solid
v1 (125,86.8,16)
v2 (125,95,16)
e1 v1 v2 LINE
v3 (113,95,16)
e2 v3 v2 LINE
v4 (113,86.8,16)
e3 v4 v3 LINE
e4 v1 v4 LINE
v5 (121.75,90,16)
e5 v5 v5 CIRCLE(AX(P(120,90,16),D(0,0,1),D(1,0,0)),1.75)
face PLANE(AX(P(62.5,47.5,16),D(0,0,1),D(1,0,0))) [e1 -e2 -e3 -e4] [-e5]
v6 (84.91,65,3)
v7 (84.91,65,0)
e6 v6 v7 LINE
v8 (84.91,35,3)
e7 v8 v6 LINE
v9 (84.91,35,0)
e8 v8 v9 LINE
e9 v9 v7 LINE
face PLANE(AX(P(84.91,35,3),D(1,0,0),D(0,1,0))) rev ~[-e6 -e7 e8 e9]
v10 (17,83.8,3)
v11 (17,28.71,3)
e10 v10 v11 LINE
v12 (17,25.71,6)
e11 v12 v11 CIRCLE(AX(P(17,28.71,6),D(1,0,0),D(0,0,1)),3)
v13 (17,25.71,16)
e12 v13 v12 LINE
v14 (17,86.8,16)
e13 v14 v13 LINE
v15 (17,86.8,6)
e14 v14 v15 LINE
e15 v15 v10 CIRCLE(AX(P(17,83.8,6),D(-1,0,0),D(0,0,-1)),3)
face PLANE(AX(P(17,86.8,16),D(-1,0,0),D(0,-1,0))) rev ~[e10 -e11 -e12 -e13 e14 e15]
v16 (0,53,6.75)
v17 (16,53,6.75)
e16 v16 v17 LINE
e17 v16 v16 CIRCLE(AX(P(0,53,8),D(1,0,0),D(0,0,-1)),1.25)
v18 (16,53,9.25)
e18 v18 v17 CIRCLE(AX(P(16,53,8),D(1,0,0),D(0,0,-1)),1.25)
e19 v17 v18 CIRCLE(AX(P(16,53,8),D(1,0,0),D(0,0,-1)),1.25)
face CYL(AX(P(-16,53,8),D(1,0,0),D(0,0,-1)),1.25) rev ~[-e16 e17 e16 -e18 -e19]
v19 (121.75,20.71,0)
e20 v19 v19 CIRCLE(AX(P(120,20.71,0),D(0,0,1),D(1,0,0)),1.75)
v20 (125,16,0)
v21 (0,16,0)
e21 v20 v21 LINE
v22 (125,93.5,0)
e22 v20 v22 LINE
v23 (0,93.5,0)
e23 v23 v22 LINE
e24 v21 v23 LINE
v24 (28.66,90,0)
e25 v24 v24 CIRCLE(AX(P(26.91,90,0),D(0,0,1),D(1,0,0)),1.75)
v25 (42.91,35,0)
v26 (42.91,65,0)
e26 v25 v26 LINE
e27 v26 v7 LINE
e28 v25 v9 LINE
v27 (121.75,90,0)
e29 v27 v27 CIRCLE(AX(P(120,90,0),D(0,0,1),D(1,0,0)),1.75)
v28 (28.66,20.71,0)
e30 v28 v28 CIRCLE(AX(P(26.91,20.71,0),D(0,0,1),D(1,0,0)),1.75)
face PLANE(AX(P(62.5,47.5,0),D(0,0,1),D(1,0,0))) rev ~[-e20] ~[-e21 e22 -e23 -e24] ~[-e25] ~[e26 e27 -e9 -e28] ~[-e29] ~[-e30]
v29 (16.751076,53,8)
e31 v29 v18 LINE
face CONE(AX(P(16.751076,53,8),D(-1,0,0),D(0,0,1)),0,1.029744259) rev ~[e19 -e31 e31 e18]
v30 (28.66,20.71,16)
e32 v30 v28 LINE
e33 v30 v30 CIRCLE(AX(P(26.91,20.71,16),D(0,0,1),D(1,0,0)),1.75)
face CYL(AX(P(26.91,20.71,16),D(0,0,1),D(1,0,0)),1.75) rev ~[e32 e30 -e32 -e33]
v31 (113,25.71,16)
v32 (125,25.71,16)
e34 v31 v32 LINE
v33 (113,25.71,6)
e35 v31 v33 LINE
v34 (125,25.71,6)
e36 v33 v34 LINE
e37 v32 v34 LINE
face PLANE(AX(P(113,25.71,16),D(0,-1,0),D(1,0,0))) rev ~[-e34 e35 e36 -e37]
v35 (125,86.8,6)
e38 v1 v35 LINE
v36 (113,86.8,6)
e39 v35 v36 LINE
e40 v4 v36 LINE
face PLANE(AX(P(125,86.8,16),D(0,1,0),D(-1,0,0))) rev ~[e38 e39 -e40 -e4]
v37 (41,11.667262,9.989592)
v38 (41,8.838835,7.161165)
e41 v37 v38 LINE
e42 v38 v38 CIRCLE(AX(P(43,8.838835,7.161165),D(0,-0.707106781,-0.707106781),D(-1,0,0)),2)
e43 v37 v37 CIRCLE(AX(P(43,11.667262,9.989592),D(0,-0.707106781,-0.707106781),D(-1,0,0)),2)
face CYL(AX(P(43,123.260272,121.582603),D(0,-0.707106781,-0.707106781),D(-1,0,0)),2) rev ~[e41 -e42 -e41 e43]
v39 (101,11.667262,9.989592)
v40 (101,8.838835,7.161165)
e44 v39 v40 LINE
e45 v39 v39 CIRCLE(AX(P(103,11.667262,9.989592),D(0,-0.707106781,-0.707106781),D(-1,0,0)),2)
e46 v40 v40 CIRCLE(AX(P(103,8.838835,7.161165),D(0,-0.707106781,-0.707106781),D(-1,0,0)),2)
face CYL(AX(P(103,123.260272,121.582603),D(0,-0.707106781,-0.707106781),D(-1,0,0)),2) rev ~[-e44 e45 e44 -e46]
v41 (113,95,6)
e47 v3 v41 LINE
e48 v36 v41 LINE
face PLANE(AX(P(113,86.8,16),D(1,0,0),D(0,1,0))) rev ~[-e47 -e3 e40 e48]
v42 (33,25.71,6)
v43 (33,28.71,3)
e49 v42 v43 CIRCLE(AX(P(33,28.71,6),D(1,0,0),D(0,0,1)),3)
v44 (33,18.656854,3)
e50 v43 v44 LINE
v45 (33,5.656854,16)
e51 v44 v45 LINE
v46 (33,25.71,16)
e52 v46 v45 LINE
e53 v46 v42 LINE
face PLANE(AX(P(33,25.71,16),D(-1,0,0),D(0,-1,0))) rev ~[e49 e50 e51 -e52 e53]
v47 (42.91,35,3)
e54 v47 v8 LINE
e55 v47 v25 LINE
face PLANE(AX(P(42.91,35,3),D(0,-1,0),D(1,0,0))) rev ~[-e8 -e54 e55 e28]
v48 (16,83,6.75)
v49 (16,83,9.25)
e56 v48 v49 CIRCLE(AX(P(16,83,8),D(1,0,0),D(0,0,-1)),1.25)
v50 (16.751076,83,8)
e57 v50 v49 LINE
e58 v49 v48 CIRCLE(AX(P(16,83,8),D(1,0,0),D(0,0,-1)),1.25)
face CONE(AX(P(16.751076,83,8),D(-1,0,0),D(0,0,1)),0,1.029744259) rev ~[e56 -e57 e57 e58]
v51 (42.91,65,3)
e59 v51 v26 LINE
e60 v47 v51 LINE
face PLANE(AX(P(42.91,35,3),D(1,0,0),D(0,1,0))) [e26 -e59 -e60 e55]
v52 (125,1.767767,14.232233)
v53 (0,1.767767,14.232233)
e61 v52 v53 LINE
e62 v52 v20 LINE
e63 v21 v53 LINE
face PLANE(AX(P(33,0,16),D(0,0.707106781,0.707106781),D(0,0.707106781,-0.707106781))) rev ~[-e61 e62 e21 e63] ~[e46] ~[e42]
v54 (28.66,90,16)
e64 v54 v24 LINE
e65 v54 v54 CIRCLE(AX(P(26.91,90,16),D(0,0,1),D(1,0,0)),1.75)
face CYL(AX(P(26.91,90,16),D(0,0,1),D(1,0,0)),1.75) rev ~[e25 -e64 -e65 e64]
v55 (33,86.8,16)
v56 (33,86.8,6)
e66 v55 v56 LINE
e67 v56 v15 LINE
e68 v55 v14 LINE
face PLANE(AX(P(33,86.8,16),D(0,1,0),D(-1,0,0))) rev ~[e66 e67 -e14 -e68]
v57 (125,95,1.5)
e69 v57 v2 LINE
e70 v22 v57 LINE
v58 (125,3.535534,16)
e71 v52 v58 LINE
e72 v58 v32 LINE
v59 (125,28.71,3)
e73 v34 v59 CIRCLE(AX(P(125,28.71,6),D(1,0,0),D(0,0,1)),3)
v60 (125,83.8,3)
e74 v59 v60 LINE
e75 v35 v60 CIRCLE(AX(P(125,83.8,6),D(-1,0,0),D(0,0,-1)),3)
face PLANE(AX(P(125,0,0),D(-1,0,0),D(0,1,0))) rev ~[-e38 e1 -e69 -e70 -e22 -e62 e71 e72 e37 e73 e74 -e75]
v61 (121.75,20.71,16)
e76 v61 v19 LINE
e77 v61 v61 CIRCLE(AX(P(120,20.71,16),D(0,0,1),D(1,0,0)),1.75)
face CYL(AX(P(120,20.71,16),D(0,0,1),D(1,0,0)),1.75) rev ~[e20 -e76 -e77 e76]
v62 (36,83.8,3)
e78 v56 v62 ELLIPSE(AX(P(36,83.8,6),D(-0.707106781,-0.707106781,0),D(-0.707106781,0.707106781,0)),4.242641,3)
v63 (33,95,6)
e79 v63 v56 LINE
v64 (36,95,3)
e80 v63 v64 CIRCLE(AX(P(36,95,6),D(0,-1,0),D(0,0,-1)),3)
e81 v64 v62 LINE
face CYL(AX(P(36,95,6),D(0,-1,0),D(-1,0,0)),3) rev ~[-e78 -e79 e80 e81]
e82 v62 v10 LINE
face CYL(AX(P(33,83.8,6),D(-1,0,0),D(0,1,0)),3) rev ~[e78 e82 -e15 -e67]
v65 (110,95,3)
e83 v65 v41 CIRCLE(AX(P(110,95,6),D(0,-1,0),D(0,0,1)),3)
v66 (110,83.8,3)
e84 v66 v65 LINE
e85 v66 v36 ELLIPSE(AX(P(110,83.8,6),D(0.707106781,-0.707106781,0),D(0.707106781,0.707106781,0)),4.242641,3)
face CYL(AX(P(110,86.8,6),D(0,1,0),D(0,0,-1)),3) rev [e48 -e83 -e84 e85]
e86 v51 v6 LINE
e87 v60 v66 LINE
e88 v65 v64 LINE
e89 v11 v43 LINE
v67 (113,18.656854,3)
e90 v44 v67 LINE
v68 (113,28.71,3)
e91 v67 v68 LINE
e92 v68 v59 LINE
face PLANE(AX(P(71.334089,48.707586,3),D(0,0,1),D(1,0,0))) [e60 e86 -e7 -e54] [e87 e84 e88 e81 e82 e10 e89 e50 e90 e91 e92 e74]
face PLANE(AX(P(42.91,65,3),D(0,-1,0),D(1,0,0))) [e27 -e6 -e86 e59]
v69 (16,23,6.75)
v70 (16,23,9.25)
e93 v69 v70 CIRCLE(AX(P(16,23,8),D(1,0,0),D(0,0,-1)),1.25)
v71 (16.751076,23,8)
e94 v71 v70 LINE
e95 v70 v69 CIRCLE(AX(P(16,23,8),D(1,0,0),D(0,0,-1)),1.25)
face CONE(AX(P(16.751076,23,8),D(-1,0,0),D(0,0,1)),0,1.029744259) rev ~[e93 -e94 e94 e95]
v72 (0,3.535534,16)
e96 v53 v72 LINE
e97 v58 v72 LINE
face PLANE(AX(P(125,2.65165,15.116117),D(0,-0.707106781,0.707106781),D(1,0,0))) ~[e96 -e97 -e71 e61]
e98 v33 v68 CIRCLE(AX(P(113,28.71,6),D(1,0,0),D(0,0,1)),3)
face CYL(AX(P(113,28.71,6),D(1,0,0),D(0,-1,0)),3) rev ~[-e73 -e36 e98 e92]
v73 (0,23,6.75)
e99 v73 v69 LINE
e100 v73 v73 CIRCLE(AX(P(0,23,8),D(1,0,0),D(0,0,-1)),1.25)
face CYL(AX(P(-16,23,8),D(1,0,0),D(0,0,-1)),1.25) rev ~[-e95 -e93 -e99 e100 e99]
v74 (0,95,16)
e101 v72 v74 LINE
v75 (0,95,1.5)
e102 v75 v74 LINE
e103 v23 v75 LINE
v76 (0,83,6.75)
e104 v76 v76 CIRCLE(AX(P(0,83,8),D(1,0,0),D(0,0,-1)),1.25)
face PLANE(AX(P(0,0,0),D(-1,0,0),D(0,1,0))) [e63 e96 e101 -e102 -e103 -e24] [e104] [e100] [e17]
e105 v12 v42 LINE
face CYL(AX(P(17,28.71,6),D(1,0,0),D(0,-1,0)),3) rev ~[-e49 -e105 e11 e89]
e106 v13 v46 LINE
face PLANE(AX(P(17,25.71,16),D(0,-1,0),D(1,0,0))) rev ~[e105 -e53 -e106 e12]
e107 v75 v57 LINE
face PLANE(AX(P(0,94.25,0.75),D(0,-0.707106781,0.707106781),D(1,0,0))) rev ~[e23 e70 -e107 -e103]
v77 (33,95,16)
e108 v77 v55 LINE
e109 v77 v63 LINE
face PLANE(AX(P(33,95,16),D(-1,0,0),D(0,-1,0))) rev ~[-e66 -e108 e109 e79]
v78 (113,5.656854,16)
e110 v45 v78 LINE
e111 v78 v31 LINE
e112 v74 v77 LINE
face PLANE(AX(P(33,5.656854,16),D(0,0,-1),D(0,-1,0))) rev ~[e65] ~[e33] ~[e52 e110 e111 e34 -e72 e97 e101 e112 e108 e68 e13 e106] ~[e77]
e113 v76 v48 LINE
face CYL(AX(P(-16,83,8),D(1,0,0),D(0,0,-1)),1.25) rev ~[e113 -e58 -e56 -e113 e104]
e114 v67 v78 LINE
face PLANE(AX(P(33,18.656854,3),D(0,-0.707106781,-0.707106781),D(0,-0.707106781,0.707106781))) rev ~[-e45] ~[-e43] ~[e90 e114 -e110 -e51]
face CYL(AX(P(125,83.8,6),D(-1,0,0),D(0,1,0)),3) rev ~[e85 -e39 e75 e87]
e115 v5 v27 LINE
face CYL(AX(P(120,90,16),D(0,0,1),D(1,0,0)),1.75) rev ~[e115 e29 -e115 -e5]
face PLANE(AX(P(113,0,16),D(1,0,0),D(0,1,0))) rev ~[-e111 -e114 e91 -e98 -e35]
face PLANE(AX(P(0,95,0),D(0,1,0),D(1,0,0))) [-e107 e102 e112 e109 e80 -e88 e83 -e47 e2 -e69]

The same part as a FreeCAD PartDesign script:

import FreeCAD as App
import Part
import Sketcher

V = App.Vector
Q = App.Units.Quantity


def edges_at(feature, points):
    """Names of the edges that pass closest to the given points."""
    edges = feature.Shape.Edges
    near = lambda p: min(range(len(edges)), key=lambda i: edges[i].distToShape(Part.Vertex(*p))[0])
    return sorted({f"Edge{near(p) + 1}" for p in points})

doc = App.newDocument("Part")
params = doc.addObject("Spreadsheet::Sheet", "Params")
for row, (alias, value) in enumerate([
    ("sketch1_width", "125 mm"),
    ("sketch1_height", "95 mm"),
    ("pad1_length", "16 mm"),
    ("sketch2_diameter", "3.5 mm"),
    ("sketch3_width", "16 mm"),
    ("sketch3_width2", "80 mm"),
    ("sketch3_width3", "12 mm"),
    ("sketch3_height", "8.2 mm"),
    ("sketch3_height2", "61.09 mm"),
    ("pocket2_length", "13 mm"),
    ("sketch4_width", "16 mm"),
    ("pad2_length", "80 mm"),
    ("sketch6_diameter", "4 mm"),
    ("hole_diameter", "4 mm"),
    ("sketch7_width", "42 mm"),
    ("sketch7_height", "30 mm"),
    ("fillet_radius", "3 mm"),
    ("chamfer_size", "2.5 mm"),
    ("chamfer_size2", "3.535534 mm"),
    ("sketch8_diameter", "2.5 mm"),
    ("hole2_diameter", "2.5 mm"),
    ("hole2_depth", "16 mm"),
    ("chamfer2_size", "1.5 mm"),
], start=1):
    params.set(f"A{row}", alias)
    params.set(f"B{row}", "=" + value)
    params.setAlias(f"B{row}", alias)

body = doc.addObject("PartDesign::Body", "Body")

# Sketch on XY plane
sketch1 = body.newObject("Sketcher::SketchObject", "Sketch")
sketch1.AttachmentSupport = (doc.getObject("XY_Plane"), [""])
sketch1.MapMode = "FlatFace"
sketch1.addGeometry([
    Part.LineSegment(V(0, 95, 0), V(0, 0, 0)),
    Part.LineSegment(V(0, 0, 0), V(125, 0, 0)),
    Part.LineSegment(V(125, 0, 0), V(125, 95, 0)),
    Part.LineSegment(V(125, 95, 0), V(0, 95, 0)),
], False)
sketch1.addConstraint([
    Sketcher.Constraint("Coincident", 0, 2, 1, 1),
    Sketcher.Constraint("Coincident", 1, 2, 2, 1),
    Sketcher.Constraint("Coincident", 2, 2, 3, 1),
    Sketcher.Constraint("Coincident", 3, 2, 0, 1),
    Sketcher.Constraint("Vertical", 0),
    Sketcher.Constraint("Horizontal", 1),
    Sketcher.Constraint("Vertical", 2),
    Sketcher.Constraint("Horizontal", 3),
    Sketcher.Constraint("Coincident", 0, 2, -1, 1),
    Sketcher.Constraint("DistanceX", 1, 1, 1, 2, 125.0),
    Sketcher.Constraint("DistanceY", 0, 2, 0, 1, 95.0),
])
sketch1.setExpression("Constraints[9]", "Params.sketch1_width")
sketch1.setExpression("Constraints[10]", "Params.sketch1_height")
pad1 = body.newObject("PartDesign::Pad", "Pad")
pad1.Profile = sketch1
pad1.setExpression("Length", "Params.pad1_length")

# Sketch on XY plane
sketch2 = body.newObject("Sketcher::SketchObject", "Sketch001")
sketch2.AttachmentSupport = (doc.getObject("XY_Plane"), [""])
sketch2.MapMode = "FlatFace"
sketch2.AttachmentOffset = App.Placement(V(0, 0, 16), App.Rotation())
sketch2.addGeometry([
    Part.Circle(V(26.91, 90, 0), V(0, 0, 1), 1.75),
    Part.Circle(V(26.91, 20.71, 0), V(0, 0, 1), 1.75),
    Part.Circle(V(120, 90, 0), V(0, 0, 1), 1.75),
    Part.Circle(V(120, 20.71, 0), V(0, 0, 1), 1.75),
], False)
sketch2.addConstraint([
    Sketcher.Constraint("Equal", 0, 1),
    Sketcher.Constraint("Equal", 1, 2),
    Sketcher.Constraint("Equal", 2, 3),
    Sketcher.Constraint("Horizontal", 0, 3, 2, 3),
    Sketcher.Constraint("Horizontal", 1, 3, 3, 3),
    Sketcher.Constraint("Vertical", 0, 3, 1, 3),
    Sketcher.Constraint("Vertical", 2, 3, 3, 3),
    Sketcher.Constraint("Diameter", 0, 3.5),
    Sketcher.Constraint("DistanceY", -1, 1, 0, 3, 90.0),
    Sketcher.Constraint("DistanceX", -1, 1, 2, 3, 120.0),
    Sketcher.Constraint("DistanceX", -1, 1, 0, 3, 26.91),
    Sketcher.Constraint("DistanceY", -1, 1, 1, 3, 20.71),
])
sketch2.setExpression("Constraints[7]", "Params.sketch2_diameter")
pocket1 = body.newObject("PartDesign::Pocket", "Pocket")
pocket1.Profile = sketch2
pocket1.Type = "ThroughAll"

# Sketch on XY plane
sketch3 = body.newObject("Sketcher::SketchObject", "Sketch002")
sketch3.AttachmentSupport = (doc.getObject("XY_Plane"), [""])
sketch3.MapMode = "FlatFace"
sketch3.AttachmentOffset = App.Placement(V(0, 0, 16), App.Rotation())
sketch3.addGeometry([
    Part.LineSegment(V(33, 95, 0), V(33, 86.8, 0)),  # 0
    Part.LineSegment(V(33, 86.8, 0), V(17, 86.8, 0)),  # 1
    Part.LineSegment(V(17, 86.8, 0), V(17, 25.71, 0)),  # 2
    Part.LineSegment(V(17, 25.71, 0), V(33, 25.71, 0)),  # 3
    Part.LineSegment(V(33, 25.71, 0), V(33, 0, 0)),  # 4
    Part.LineSegment(V(33, 0, 0), V(113, 0, 0)),  # 5
    Part.LineSegment(V(113, 0, 0), V(113, 25.71, 0)),  # 6
    Part.LineSegment(V(113, 25.71, 0), V(125, 25.71, 0)),  # 7
    Part.LineSegment(V(125, 25.71, 0), V(125, 86.8, 0)),  # 8
    Part.LineSegment(V(125, 86.8, 0), V(113, 86.8, 0)),  # 9
    Part.LineSegment(V(113, 86.8, 0), V(113, 95, 0)),  # 10
    Part.LineSegment(V(113, 95, 0), V(33, 95, 0)),  # 11
], False)
sketch3.addConstraint([
    Sketcher.Constraint("Coincident", 0, 2, 1, 1),
    Sketcher.Constraint("Coincident", 1, 2, 2, 1),
    Sketcher.Constraint("Coincident", 2, 2, 3, 1),
    Sketcher.Constraint("Coincident", 3, 2, 4, 1),
    Sketcher.Constraint("Coincident", 4, 2, 5, 1),
    Sketcher.Constraint("Coincident", 5, 2, 6, 1),
    Sketcher.Constraint("Coincident", 6, 2, 7, 1),
    Sketcher.Constraint("Coincident", 7, 2, 8, 1),
    Sketcher.Constraint("Coincident", 8, 2, 9, 1),
    Sketcher.Constraint("Coincident", 9, 2, 10, 1),
    Sketcher.Constraint("Coincident", 10, 2, 11, 1),
    Sketcher.Constraint("Coincident", 11, 2, 0, 1),
    Sketcher.Constraint("Vertical", 0),
    Sketcher.Constraint("Horizontal", 1),
    Sketcher.Constraint("Vertical", 2),
    Sketcher.Constraint("Horizontal", 3),
    Sketcher.Constraint("Vertical", 4),
    Sketcher.Constraint("Horizontal", 5),
    Sketcher.Constraint("Vertical", 6),
    Sketcher.Constraint("Horizontal", 7),
    Sketcher.Constraint("Vertical", 8),
    Sketcher.Constraint("Horizontal", 9),
    Sketcher.Constraint("Vertical", 10),
    Sketcher.Constraint("Horizontal", 11),
    Sketcher.Constraint("PointOnObject", 4, 2, -1),
    Sketcher.Constraint("Horizontal", 3, 2, 6, 2),
    Sketcher.Constraint("Horizontal", 1, 2, 8, 2),
    Sketcher.Constraint("Vertical", 0, 2, 3, 2),
    Sketcher.Constraint("Vertical", 6, 2, 9, 2),
    Sketcher.Constraint("DistanceX", 1, 2, 1, 1, 16.0),
    Sketcher.Constraint("DistanceX", 5, 1, 5, 2, 80.0),
    Sketcher.Constraint("DistanceX", 7, 1, 7, 2, 12.0),
    Sketcher.Constraint("DistanceY", 0, 2, 0, 1, 8.2),
    Sketcher.Constraint("DistanceX", -1, 1, 0, 2, 33.0),
    Sketcher.Constraint("DistanceY", -1, 1, 10, 2, 95.0),
    Sketcher.Constraint("DistanceY", 2, 2, 2, 1, 61.09),
])
sketch3.setExpression("Constraints[29]", "Params.sketch3_width")
sketch3.setExpression("Constraints[30]", "Params.sketch3_width2")
sketch3.setExpression("Constraints[31]", "Params.sketch3_width3")
sketch3.setExpression("Constraints[32]", "Params.sketch3_height")
sketch3.setExpression("Constraints[35]", "Params.sketch3_height2")
pocket2 = body.newObject("PartDesign::Pocket", "Pocket001")
pocket2.Profile = sketch3
pocket2.setExpression("Length", "Params.pocket2_length")

# Sketch on YZ plane
sketch4 = body.newObject("Sketcher::SketchObject", "Sketch003")
sketch4.AttachmentSupport = (doc.getObject("YZ_Plane"), [""])
sketch4.MapMode = "FlatFace"
sketch4.AttachmentOffset = App.Placement(V(0, 0, 125), App.Rotation())
sketch4.addGeometry([
    Part.LineSegment(V(16, 0, 0), V(0, 16, 0)),
    Part.LineSegment(V(0, 16, 0), V(0, 0, 0)),
    Part.LineSegment(V(0, 0, 0), V(16, 0, 0)),
], False)
sketch4.addConstraint([
    Sketcher.Constraint("Coincident", 0, 2, 1, 1),
    Sketcher.Constraint("Coincident", 1, 2, 2, 1),
    Sketcher.Constraint("Coincident", 2, 2, 0, 1),
    Sketcher.Constraint("Vertical", 1),
    Sketcher.Constraint("Horizontal", 2),
    Sketcher.Constraint("Coincident", 1, 2, -1, 1),
    Sketcher.Constraint("Equal", 2, 1),
    Sketcher.Constraint("DistanceX", 2, 1, 2, 2, 16.0),
])
sketch4.setExpression("Constraints[7]", "Params.sketch4_width")
pocket3 = body.newObject("PartDesign::Pocket", "Pocket002")
pocket3.Profile = sketch4
pocket3.Type = "ThroughAll"

# Sketch on YZ plane
sketch5 = body.newObject("Sketcher::SketchObject", "Sketch004")
sketch5.AttachmentSupport = (doc.getObject("YZ_Plane"), [""])
sketch5.MapMode = "FlatFace"
sketch5.AttachmentOffset = App.Placement(V(0, 0, 33), App.Rotation())
sketch5.addGeometry([
    Part.LineSegment(V(0, 16, 0), V(13, 3, 0)),
    Part.LineSegment(V(13, 3, 0), V(18.656854, 3, 0)),
    Part.LineSegment(V(18.656854, 3, 0), V(5.656854, 16, 0)),
    Part.LineSegment(V(5.656854, 16, 0), V(0, 16, 0)),
], False)
sketch5.addConstraint([
    Sketcher.Constraint("Coincident", 0, 2, 1, 1),
    Sketcher.Constraint("Coincident", 1, 2, 2, 1),
    Sketcher.Constraint("Coincident", 2, 2, 3, 1),
    Sketcher.Constraint("Coincident", 3, 2, 0, 1),
    Sketcher.Constraint("Horizontal", 1),
    Sketcher.Constraint("Horizontal", 3),
    Sketcher.Constraint("PointOnObject", 3, 2, -2),
    Sketcher.Constraint("Parallel", 0, 2),
    Sketcher.Constraint("Angle", 0, Q("-45 deg")),
    Sketcher.Constraint("DistanceX", -1, 1, 0, 2, 13.0),
    Sketcher.Constraint("DistanceY", -1, 1, 0, 2, 3.0),
    Sketcher.Constraint("DistanceX", 1, 1, 1, 2, 5.656854),
])
pad2 = body.newObject("PartDesign::Pad", "Pad001")
pad2.Profile = sketch5
pad2.setExpression("Length", "Params.pad2_length")

# Sketch on an angled plane
sketch6 = body.newObject("Sketcher::SketchObject", "Sketch005")
sketch6.Placement = App.Placement(V(0, 10.828427, 10.828427), App.Rotation(V(1, 0, 0), V(0, 0.707106781, -0.707106781), V(0, 0.707106781, 0.707106781), "ZXY"))
sketch6.addGeometry([
    Part.Circle(V(43, 1.186292, 0), V(0, 0, 1), 2),
    Part.Circle(V(103, 1.186292, 0), V(0, 0, 1), 2),
], False)
sketch6.addConstraint([
    Sketcher.Constraint("Equal", 0, 1),
    Sketcher.Constraint("Horizontal", 0, 3, 1, 3),
    Sketcher.Constraint("Diameter", 0, 4.0),
    Sketcher.Constraint("DistanceX", -1, 1, 0, 3, 43.0),
    Sketcher.Constraint("DistanceX", -1, 1, 1, 3, 103.0),
    Sketcher.Constraint("DistanceY", -1, 1, 0, 3, 1.186292),
])
sketch6.setExpression("Constraints[2]", "Params.sketch6_diameter")
doc.recompute()
hole = body.newObject("PartDesign::Hole", "Hole")
hole.Profile = sketch6
hole.ThreadType = "None"
hole.setExpression("Diameter", "Params.hole_diameter")
hole.DepthType = "ThroughAll"

# Sketch on XY plane
sketch7 = body.newObject("Sketcher::SketchObject", "Sketch006")
sketch7.AttachmentSupport = (doc.getObject("XY_Plane"), [""])
sketch7.MapMode = "FlatFace"
sketch7.AttachmentOffset = App.Placement(V(0, 0, 3), App.Rotation())
sketch7.addGeometry([
    Part.LineSegment(V(42.91, 65, 0), V(42.91, 35, 0)),
    Part.LineSegment(V(42.91, 35, 0), V(84.91, 35, 0)),
    Part.LineSegment(V(84.91, 35, 0), V(84.91, 65, 0)),
    Part.LineSegment(V(84.91, 65, 0), V(42.91, 65, 0)),
], False)
sketch7.addConstraint([
    Sketcher.Constraint("Coincident", 0, 2, 1, 1),
    Sketcher.Constraint("Coincident", 1, 2, 2, 1),
    Sketcher.Constraint("Coincident", 2, 2, 3, 1),
    Sketcher.Constraint("Coincident", 3, 2, 0, 1),
    Sketcher.Constraint("Vertical", 0),
    Sketcher.Constraint("Horizontal", 1),
    Sketcher.Constraint("Vertical", 2),
    Sketcher.Constraint("Horizontal", 3),
    Sketcher.Constraint("DistanceX", 1, 1, 1, 2, 42.0),
    Sketcher.Constraint("DistanceY", 0, 2, 0, 1, 30.0),
    Sketcher.Constraint("DistanceY", -1, 1, 0, 2, 35.0),
    Sketcher.Constraint("DistanceX", -1, 1, 0, 2, 42.91),
])
sketch7.setExpression("Constraints[8]", "Params.sketch7_width")
sketch7.setExpression("Constraints[9]", "Params.sketch7_height")
pocket4 = body.newObject("PartDesign::Pocket", "Pocket003")
pocket4.Profile = sketch7
pocket4.Type = "ThroughAll"
doc.recompute()

fillet = body.newObject("PartDesign::Fillet", "Fillet")
fillet.Base = (pocket4, edges_at(pocket4, [
    (25, 86.8, 3),
    (113, 90.9, 3),
    (119, 86.8, 3),
    (119, 25.71, 3),
    (25, 25.71, 3),
    (33, 90.9, 3),
]))
fillet.setExpression("Radius", "Params.fillet_radius")
doc.recompute()

chamfer = body.newObject("PartDesign::Chamfer", "Chamfer")
chamfer.Base = (fillet, edges_at(fillet, [(62.5, 0, 16)]))
chamfer.ChamferType = "Two distances"
chamfer.setExpression("Size", "Params.chamfer_size")
chamfer.setExpression("Size2", "Params.chamfer_size2")
chamfer.FlipDirection = True

# Sketch on YZ plane
sketch8 = body.newObject("Sketcher::SketchObject", "Sketch007")
sketch8.AttachmentSupport = (doc.getObject("YZ_Plane"), [""])
sketch8.MapMode = "FlatFace"
sketch8.addGeometry([
    Part.Circle(V(83, 8, 0), V(0, 0, 1), 1.25),
    Part.Circle(V(53, 8, 0), V(0, 0, 1), 1.25),
    Part.Circle(V(23, 8, 0), V(0, 0, 1), 1.25),
], False)
sketch8.addConstraint([
    Sketcher.Constraint("Equal", 0, 1),
    Sketcher.Constraint("Equal", 1, 2),
    Sketcher.Constraint("Horizontal", 0, 3, 1, 3),
    Sketcher.Constraint("Horizontal", 1, 3, 2, 3),
    Sketcher.Constraint("Diameter", 0, 2.5),
    Sketcher.Constraint("DistanceX", -1, 1, 0, 3, 83.0),
    Sketcher.Constraint("DistanceY", -1, 1, 0, 3, 8.0),
    Sketcher.Constraint("DistanceX", -1, 1, 1, 3, 53.0),
    Sketcher.Constraint("DistanceX", -1, 1, 2, 3, 23.0),
])
sketch8.setExpression("Constraints[4]", "Params.sketch8_diameter")
doc.recompute()
hole2 = body.newObject("PartDesign::Hole", "Hole001")
hole2.Profile = sketch8
hole2.ThreadType = "None"
hole2.setExpression("Diameter", "Params.hole2_diameter")
hole2.DepthType = "Dimension"
hole2.setExpression("Depth", "Params.hole2_depth")
hole2.DrillPoint = "Angled"
hole2.DrillPointAngle = 118
hole2.Reversed = True
doc.recompute()

chamfer2 = body.newObject("PartDesign::Chamfer", "Chamfer001")
chamfer2.Base = (hole2, edges_at(hole2, [(62.5, 95, 0)]))
chamfer2.setExpression("Size", "Params.chamfer2_size")

doc.recompute()
